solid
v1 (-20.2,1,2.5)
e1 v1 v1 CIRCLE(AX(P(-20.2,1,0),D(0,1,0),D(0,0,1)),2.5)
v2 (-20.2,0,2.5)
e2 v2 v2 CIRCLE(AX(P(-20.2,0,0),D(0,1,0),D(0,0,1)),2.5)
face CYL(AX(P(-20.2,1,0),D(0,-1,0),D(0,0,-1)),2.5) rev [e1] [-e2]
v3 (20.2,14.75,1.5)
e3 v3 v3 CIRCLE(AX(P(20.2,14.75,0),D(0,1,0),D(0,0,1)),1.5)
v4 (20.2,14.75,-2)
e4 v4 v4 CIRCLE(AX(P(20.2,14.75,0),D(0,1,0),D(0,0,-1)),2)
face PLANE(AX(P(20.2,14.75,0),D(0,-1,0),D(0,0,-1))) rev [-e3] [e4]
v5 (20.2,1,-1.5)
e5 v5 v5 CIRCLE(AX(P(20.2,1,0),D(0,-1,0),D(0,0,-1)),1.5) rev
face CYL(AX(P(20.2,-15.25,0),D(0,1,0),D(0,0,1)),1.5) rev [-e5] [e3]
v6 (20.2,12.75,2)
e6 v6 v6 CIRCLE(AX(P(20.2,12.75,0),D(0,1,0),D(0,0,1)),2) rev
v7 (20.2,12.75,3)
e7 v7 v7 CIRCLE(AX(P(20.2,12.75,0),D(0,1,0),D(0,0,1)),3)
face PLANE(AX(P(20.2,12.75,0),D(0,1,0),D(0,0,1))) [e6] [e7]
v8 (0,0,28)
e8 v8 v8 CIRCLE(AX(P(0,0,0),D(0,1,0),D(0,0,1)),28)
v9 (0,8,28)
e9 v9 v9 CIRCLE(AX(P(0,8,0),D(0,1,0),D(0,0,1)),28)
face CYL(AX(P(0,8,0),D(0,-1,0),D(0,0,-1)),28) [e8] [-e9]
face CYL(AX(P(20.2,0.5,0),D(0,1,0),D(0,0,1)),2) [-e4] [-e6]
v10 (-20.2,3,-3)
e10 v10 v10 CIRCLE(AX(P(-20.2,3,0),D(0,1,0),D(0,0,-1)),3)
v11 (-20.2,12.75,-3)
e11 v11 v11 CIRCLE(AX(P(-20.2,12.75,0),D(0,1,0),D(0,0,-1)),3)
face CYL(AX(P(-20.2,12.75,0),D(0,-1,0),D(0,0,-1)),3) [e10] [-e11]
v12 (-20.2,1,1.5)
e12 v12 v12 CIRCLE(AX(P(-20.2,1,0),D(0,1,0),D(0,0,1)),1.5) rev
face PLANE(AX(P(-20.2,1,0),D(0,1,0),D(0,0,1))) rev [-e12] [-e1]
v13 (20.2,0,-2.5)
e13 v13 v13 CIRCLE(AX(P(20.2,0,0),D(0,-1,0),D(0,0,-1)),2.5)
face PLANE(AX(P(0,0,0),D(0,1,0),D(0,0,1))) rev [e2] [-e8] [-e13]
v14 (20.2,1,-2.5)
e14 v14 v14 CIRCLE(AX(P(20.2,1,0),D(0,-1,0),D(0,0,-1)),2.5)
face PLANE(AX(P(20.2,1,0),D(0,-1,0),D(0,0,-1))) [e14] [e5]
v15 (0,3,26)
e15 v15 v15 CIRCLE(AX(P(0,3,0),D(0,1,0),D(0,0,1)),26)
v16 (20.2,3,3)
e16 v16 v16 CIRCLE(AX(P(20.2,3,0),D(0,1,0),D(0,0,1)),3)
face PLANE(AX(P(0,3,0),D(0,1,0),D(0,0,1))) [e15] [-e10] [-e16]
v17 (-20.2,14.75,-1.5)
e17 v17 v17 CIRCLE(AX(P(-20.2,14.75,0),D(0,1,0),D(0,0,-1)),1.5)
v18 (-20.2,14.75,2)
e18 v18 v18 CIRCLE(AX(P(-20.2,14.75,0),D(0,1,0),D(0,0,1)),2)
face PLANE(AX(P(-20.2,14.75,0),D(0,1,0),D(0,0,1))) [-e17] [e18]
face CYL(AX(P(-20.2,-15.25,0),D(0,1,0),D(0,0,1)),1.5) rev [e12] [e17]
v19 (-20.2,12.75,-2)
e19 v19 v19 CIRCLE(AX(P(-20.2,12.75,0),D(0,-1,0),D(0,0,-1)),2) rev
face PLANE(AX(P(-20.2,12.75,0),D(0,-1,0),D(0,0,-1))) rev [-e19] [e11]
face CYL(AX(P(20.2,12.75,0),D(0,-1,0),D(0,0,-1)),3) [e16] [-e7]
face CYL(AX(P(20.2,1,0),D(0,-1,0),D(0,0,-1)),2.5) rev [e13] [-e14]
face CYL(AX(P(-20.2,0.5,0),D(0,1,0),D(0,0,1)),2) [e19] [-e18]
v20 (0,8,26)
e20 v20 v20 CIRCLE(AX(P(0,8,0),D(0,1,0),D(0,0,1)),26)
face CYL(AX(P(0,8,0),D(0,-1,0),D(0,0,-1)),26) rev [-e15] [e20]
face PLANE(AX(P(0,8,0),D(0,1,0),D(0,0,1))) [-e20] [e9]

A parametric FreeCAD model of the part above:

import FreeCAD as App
import Part
import Sketcher

V = App.Vector

doc = App.newDocument("Part")
body = doc.addObject("PartDesign::Body", "Body")

# Sketch on XZ plane
sketch1 = body.newObject("Sketcher::SketchObject", "Sketch")
sketch1.AttachmentSupport = (doc.getObject("XZ_Plane"), [""])
sketch1.MapMode = "FlatFace"
sketch1.addGeometry(Part.Circle(V(0, 0, 0), V(0, 0, 1), 28), False)
sketch1.addGeometry(Part.Circle(V(0, 0, 0), V(0, 0, 1), 26), False)
sketch1.addConstraint(Sketcher.Constraint("Coincident", 0, 3, -1, 1))
sketch1.addConstraint(Sketcher.Constraint("Coincident", 1, 3, -1, 1))
sketch1.addConstraint(Sketcher.Constraint("Diameter", 0, 56.0))
sketch1.addConstraint(Sketcher.Constraint("Diameter", 1, 52.0))
pad1 = body.newObject("PartDesign::Pad", "Pad")
pad1.Profile = sketch1
pad1.Length = 8
pad1.Reversed = True
body2 = doc.addObject("PartDesign::Body", "Body001")

# Sketch on XZ plane
sketch2 = body2.newObject("Sketcher::SketchObject", "Sketch001")
sketch2.AttachmentSupport = (doc.getObject("XZ_Plane001"), [""])
sketch2.MapMode = "FlatFace"
sketch2.addGeometry(Part.Circle(V(0, 0, 0), V(0, 0, 1), 24), False)
sketch2.addConstraint(Sketcher.Constraint("Coincident", 0, 3, -1, 1))
sketch2.addConstraint(Sketcher.Constraint("Diameter", 0, 48.0))
pad2 = body2.newObject("PartDesign::Pad", "Pad001")
pad2.Profile = sketch2
pad2.Length = 3
pad2.Reversed = True
body3 = doc.addObject("PartDesign::Body", "Body002")

# Sketch on XZ plane
sketch3 = body3.newObject("Sketcher::SketchObject", "Sketch002")
sketch3.AttachmentSupport = (doc.getObject("XZ_Plane002"), [""])
sketch3.MapMode = "FlatFace"
sketch3.AttachmentOffset = App.Placement(V(0, 0, -3), App.Rotation())
sketch3.addGeometry(Part.Circle(V(-20.2, 0, 0), V(0, 0, 1), 2), False)
sketch3.addConstraint(Sketcher.Constraint("PointOnObject", 0, 3, -1))
sketch3.addConstraint(Sketcher.Constraint("Diameter", 0, 4.0))
sketch3.addConstraint(Sketcher.Constraint("DistanceX", 0, 3, -1, 1, 20.2))
pad3 = body3.newObject("PartDesign::Pad", "Pad002")
pad3.Profile = sketch3
pad3.Type = "TwoLengths"
pad3.Length = 11.75
pad3.Length2 = 2.5
pad3.Reversed = True
body4 = doc.addObject("PartDesign::Body", "Body003")

# Sketch on XZ plane
sketch4 = body4.newObject("Sketcher::SketchObject", "Sketch003")
sketch4.AttachmentSupport = (doc.getObject("XZ_Plane003"), [""])
sketch4.MapMode = "FlatFace"
sketch4.AttachmentOffset = App.Placement(V(0, 0, -3), App.Rotation())
sketch4.addGeometry(Part.Circle(V(20.2, 0, 0), V(0, 0, 1), 2), False)
sketch4.addConstraint(Sketcher.Constraint("PointOnObject", 0, 3, -1))
sketch4.addConstraint(Sketcher.Constraint("Diameter", 0, 4.0))
sketch4.addConstraint(Sketcher.Constraint("DistanceX", -1, 1, 0, 3, 20.2))
pad4 = body4.newObject("PartDesign::Pad", "Pad003")
pad4.Profile = sketch4
pad4.Type = "TwoLengths"
pad4.Length = 11.75
pad4.Length2 = 2.5
pad4.Reversed = True
body.AllowCompound = True
doc.recompute()

boolean = body.newObject("PartDesign::Boolean", "Boolean")
boolean.Type = "Fuse"
boolean.addObjects([body2])
doc.recompute()

boolean2 = body.newObject("PartDesign::Boolean", "Boolean001")
boolean2.Type = "Fuse"
boolean2.addObjects([body3])
doc.recompute()

boolean3 = body.newObject("PartDesign::Boolean", "Boolean002")
boolean3.Type = "Fuse"
boolean3.addObjects([body4])

# Sketch on XZ plane
sketch5 = body.newObject("Sketcher::SketchObject", "Sketch004")
sketch5.AttachmentSupport = (doc.getObject("XZ_Plane"), [""])
sketch5.MapMode = "FlatFace"
sketch5.addGeometry(Part.Circle(V(0, 0, 0), V(0, 0, 1), 28), False)
sketch5.addConstraint(Sketcher.Constraint("Coincident", 0, 3, -1, 1))
sketch5.addConstraint(Sketcher.Constraint("Diameter", 0, 56.0))
pad5 = body.newObject("PartDesign::Pad", "Pad004")
pad5.Profile = sketch5
pad5.Length = 3
pad5.Reversed = True

# Sketch on XZ plane
sketch6 = body.newObject("Sketcher::SketchObject", "Sketch005")
sketch6.AttachmentSupport = (doc.getObject("XZ_Plane"), [""])
sketch6.MapMode = "FlatFace"
sketch6.AttachmentOffset = App.Placement(V(0, 0, -3), App.Rotation())
sketch6.addGeometry(Part.Circle(V(20.2, 0, 0), V(0, 0, 1), 3), False)
sketch6.addGeometry(Part.Circle(V(-20.2, 0, 0), V(0, 0, 1), 3), False)
sketch6.addConstraint(Sketcher.Constraint("Equal", 0, 1))
sketch6.addConstraint(Sketcher.Constraint("Symmetric", 0, 3, 1, 3, -1, 1))
sketch6.addConstraint(Sketcher.Constraint("PointOnObject", 0, 3, -1))
sketch6.addConstraint(Sketcher.Constraint("Diameter", 0, 6.0))
sketch6.addConstraint(Sketcher.Constraint("DistanceX", -1, 1, 0, 3, 20.2))
pad6 = body.newObject("PartDesign::Pad", "Pad005")
pad6.Profile = sketch6
pad6.Length = 9.75
pad6.Reversed = True

# Sketch on XZ plane
sketch7 = body.newObject("Sketcher::SketchObject", "Sketch006")
sketch7.AttachmentSupport = (doc.getObject("XZ_Plane"), [""])
sketch7.MapMode = "FlatFace"
sketch7.AttachmentOffset = App.Placement(V(0, 0, -14.75), App.Rotation())
sketch7.addGeometry(Part.Circle(V(20.2, 0, 0), V(0, 0, 1), 1.5), False)
sketch7.addGeometry(Part.Circle(V(-20.2, 0, 0), V(0, 0, 1), 1.5), False)
sketch7.addConstraint(Sketcher.Constraint("Equal", 0, 1))
sketch7.addConstraint(Sketcher.Constraint("Symmetric", 0, 3, 1, 3, -1, 1))
sketch7.addConstraint(Sketcher.Constraint("PointOnObject", 0, 3, -1))
sketch7.addConstraint(Sketcher.Constraint("Diameter", 0, 3.0))
sketch7.addConstraint(Sketcher.Constraint("DistanceX", -1, 1, 0, 3, 20.2))
pocket1 = body.newObject("PartDesign::Pocket", "Pocket")
pocket1.Profile = sketch7
pocket1.Length = 30
pocket1.Reversed = True

# Sketch on XZ plane
sketch8 = body.newObject("Sketcher::SketchObject", "Sketch007")
sketch8.AttachmentSupport = (doc.getObject("XZ_Plane"), [""])
sketch8.MapMode = "FlatFace"
sketch8.addGeometry(Part.Circle(V(20.2, 0, 0), V(0, 0, 1), 2.5), False)
sketch8.addGeometry(Part.Circle(V(-20.2, 0, 0), V(0, 0, 1), 2.5), False)
sketch8.addConstraint(Sketcher.Constraint("Equal", 0, 1))
sketch8.addConstraint(Sketcher.Constraint("Symmetric", 0, 3, 1, 3, -1, 1))
sketch8.addConstraint(Sketcher.Constraint("PointOnObject", 0, 3, -1))
sketch8.addConstraint(Sketcher.Constraint("Diameter", 0, 5.0))
sketch8.addConstraint(Sketcher.Constraint("DistanceX", -1, 1, 0, 3, 20.2))
pocket2 = body.newObject("PartDesign::Pocket", "Pocket001")
pocket2.Profile = sketch8
pocket2.Length = 1

doc.recompute()
